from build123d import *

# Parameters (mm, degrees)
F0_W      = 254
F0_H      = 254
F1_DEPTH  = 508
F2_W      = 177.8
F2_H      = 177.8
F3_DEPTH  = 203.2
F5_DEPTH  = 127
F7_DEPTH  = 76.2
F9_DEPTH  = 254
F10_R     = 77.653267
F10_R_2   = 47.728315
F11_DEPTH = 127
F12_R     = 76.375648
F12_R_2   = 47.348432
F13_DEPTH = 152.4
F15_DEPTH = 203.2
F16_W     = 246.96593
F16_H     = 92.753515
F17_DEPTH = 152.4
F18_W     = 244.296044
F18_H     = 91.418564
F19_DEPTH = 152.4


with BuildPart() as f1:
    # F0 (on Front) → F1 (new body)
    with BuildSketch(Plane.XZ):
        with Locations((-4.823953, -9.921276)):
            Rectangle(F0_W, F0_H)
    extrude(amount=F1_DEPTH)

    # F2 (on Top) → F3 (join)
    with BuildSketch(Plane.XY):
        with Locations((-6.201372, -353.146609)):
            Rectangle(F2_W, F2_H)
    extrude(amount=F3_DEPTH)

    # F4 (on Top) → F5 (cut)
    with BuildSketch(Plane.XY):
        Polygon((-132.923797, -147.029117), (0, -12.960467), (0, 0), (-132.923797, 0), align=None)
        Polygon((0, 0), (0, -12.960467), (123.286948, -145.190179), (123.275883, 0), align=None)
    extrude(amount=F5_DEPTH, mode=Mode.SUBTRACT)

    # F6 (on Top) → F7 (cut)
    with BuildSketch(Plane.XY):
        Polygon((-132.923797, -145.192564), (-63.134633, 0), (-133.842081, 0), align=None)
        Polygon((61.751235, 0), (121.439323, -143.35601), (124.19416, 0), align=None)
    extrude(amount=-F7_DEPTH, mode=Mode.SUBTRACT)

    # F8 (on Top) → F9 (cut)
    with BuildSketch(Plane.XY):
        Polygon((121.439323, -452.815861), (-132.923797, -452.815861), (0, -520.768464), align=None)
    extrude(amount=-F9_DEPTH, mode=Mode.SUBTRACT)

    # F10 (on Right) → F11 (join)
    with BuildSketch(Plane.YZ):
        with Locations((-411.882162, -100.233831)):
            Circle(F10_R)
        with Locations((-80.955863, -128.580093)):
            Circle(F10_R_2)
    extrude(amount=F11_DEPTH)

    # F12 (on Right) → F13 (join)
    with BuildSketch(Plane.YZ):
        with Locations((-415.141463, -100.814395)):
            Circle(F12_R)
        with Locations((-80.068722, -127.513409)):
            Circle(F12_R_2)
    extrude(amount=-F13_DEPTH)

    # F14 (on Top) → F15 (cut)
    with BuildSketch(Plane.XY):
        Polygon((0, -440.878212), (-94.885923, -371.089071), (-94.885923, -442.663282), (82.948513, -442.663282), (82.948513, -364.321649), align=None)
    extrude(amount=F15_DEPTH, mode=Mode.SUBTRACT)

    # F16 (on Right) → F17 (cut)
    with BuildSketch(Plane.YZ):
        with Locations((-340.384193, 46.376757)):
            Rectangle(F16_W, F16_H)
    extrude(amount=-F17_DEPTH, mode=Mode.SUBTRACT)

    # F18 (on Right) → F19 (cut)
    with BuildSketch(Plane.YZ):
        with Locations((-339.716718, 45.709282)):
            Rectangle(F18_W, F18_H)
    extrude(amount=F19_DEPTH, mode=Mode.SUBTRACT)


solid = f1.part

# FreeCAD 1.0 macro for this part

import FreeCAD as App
import Part
import Sketcher

V = App.Vector
Q = App.Units.Quantity


def add_polygon(sketch, points):
    """Adds a closed chain of lines whose ends are joined by coincident constraints."""
    first, n = sketch.GeometryCount, len(points)
    for a, b in zip(points, points[1:] + points[:1]):
        sketch.addGeometry(Part.LineSegment(App.Vector(*a, 0), App.Vector(*b, 0)), False)
    for i in range(n):
        sketch.addConstraint(Sketcher.Constraint("Coincident", first + i, 2, first + (i + 1) % n, 1))

doc = App.newDocument("Part")
body = doc.addObject("PartDesign::Body", "Body")

sketch1 = doc.addObject("Sketcher::SketchObject", "Sketch")
body.addObject(sketch1)
sketch1.AttachmentSupport = (doc.XZ_Plane, [""])
sketch1.MapMode = "FlatFace"
add_polygon(sketch1, [(-132, 117), (-132, -137), (122, -137), (122, 117)])
sketch1.addConstraint(Sketcher.Constraint("Vertical", 0))
sketch1.addConstraint(Sketcher.Constraint("Horizontal", 1))
sketch1.addConstraint(Sketcher.Constraint("Vertical", 2))
sketch1.addConstraint(Sketcher.Constraint("Horizontal", 3))
sketch1.addConstraint(Sketcher.Constraint("Equal", 3, 0))
sketch1.addConstraint(Sketcher.Constraint("DistanceX", 1, 1, 1, 2, Q("10 in")))
sketch1.addConstraint(Sketcher.Constraint("DistanceX", 0, 2, -1, 1, Q("131.823953 mm")))
sketch1.addConstraint(Sketcher.Constraint("DistanceY", 0, 2, -1, 1, Q("136.921276 mm")))
pad1 = doc.addObject("PartDesign::Pad", "Pad")
body.addObject(pad1)
pad1.Profile = sketch1
pad1.Length = Q("20 in")

sketch2 = doc.addObject("Sketcher::SketchObject", "Sketch001")
body.addObject(sketch2)
sketch2.AttachmentSupport = (doc.XY_Plane, [""])
sketch2.MapMode = "FlatFace"
add_polygon(sketch2, [(-95, -264), (-95, -442), (83, -442), (83, -264)])
sketch2.addConstraint(Sketcher.Constraint("Vertical", 0))
sketch2.addConstraint(Sketcher.Constraint("Horizontal", 1))
sketch2.addConstraint(Sketcher.Constraint("Vertical", 2))
sketch2.addConstraint(Sketcher.Constraint("Horizontal", 3))
sketch2.addConstraint(Sketcher.Constraint("Equal", 3, 0))
sketch2.addConstraint(Sketcher.Constraint("DistanceX", 1, 1, 1, 2, Q("7 in")))
sketch2.addConstraint(Sketcher.Constraint("DistanceX", 0, 2, -1, 1, Q("95.101372 mm")))
sketch2.addConstraint(Sketcher.Constraint("DistanceY", 0, 2, -1, 1, Q("442.046609 mm")))
pad2 = doc.addObject("PartDesign::Pad", "Pad001")
body.addObject(pad2)
pad2.Profile = sketch2
pad2.Length = Q("8 in")

sketch3 = doc.addObject("Sketcher::SketchObject", "Sketch002")
body.addObject(sketch3)
sketch3.AttachmentSupport = (doc.XY_Plane, [""])
sketch3.MapMode = "FlatFace"
add_polygon(sketch3, [(-133, -147), (0, -13), (123, -145), (123, 0), (-133, 0)])
sketch3.addConstraint(Sketcher.Constraint("Horizontal", 3))
sketch3.addConstraint(Sketcher.Constraint("Vertical", 4))
sketch3.addConstraint(Sketcher.Constraint("PointOnObject", 0, 2, -2))
sketch3.addConstraint(Sketcher.Constraint("PointOnObject", 2, 2, -1))
sketch3.addConstraint(Sketcher.Constraint("DistanceX", 3, 2, 3, 1, Q("256.19968 mm")))
sketch3.addConstraint(Sketcher.Constraint("Distance", 2, Q("145.190179 mm")))
sketch3.addConstraint(Sketcher.Constraint("DistanceY", 4, 2, 4, 1, Q("147.029117 mm")))
sketch3.addConstraint(Sketcher.Constraint("DistanceY", 1, 2, 0, 2, Q("132.229712 mm")))
sketch3.addConstraint(Sketcher.Constraint("Distance", 0, Q("188.793905 mm")))
sketch3.addConstraint(Sketcher.Constraint("Distance", 1, Q("180.788186 mm")))
pocket1 = doc.addObject("PartDesign::Pocket", "Pocket")
body.addObject(pocket1)
pocket1.Profile = sketch3
pocket1.Length = Q("5 in")
pocket1.Reversed = True

sketch4 = doc.addObject("Sketcher::SketchObject", "Sketch003")
body.addObject(sketch4)
sketch4.AttachmentSupport = (doc.XY_Plane, [""])
sketch4.MapMode = "FlatFace"
add_polygon(sketch4, [(-133, -145), (-63, 0), (-134, 0)])
add_polygon(sketch4, [(62, 0), (121, -143), (124, 0)])
sketch4.addConstraint(Sketcher.Constraint("Horizontal", 1))
sketch4.addConstraint(Sketcher.Constraint("Horizontal", 5))
sketch4.addConstraint(Sketcher.Constraint("PointOnObject", 0, 2, -1))
sketch4.addConstraint(Sketcher.Constraint("PointOnObject", 4, 2, -1))
sketch4.addConstraint(Sketcher.Constraint("DistanceX", 1, 2, 1, 1, Q("70.707448 mm")))
sketch4.addConstraint(Sketcher.Constraint("DistanceX", 5, 2, 5, 1, Q("62.442925 mm")))
sketch4.addConstraint(Sketcher.Constraint("DistanceX", 1, 2, -1, 1, Q("133.842081 mm")))
sketch4.addConstraint(Sketcher.Constraint("DistanceY", 3, 2, -1, 1, Q("143.35601 mm")))
sketch4.addConstraint(Sketcher.Constraint("DistanceX", -1, 1, 4, 2, Q("124.19416 mm")))
sketch4.addConstraint(Sketcher.Constraint("DistanceX", 2, 2, 3, 2, Q("254.36312 mm")))
sketch4.addConstraint(Sketcher.Constraint("Distance", 0, Q("161.094407 mm")))
sketch4.addConstraint(Sketcher.Constraint("Distance", 2, Q("145.195468 mm")))
pocket2 = doc.addObject("PartDesign::Pocket", "Pocket001")
body.addObject(pocket2)
pocket2.Profile = sketch4
pocket2.Length = Q("3 in")

sketch5 = doc.addObject("Sketcher::SketchObject", "Sketch004")
body.addObject(sketch5)
sketch5.AttachmentSupport = (doc.XY_Plane, [""])
sketch5.MapMode = "FlatFace"
add_polygon(sketch5, [(121, -453), (-133, -453), (0, -521)])
sketch5.addConstraint(Sketcher.Constraint("Horizontal", 0))
sketch5.addConstraint(Sketcher.Constraint("PointOnObject", 1, 2, -2))
sketch5.addConstraint(Sketcher.Constraint("DistanceX", 0, 2, 0, 1, Q("254.36312 mm")))
sketch5.addConstraint(Sketcher.Constraint("Distance", 1, Q("149.285941 mm")))
sketch5.addConstraint(Sketcher.Constraint("Distance", 2, Q("139.158418 mm")))
sketch5.addConstraint(Sketcher.Constraint("DistanceY", 0, 2, -1, 1, Q("452.815861 mm")))
pocket3 = doc.addObject("PartDesign::Pocket", "Pocket002")
body.addObject(pocket3)
pocket3.Profile = sketch5
pocket3.Length = Q("10 in")

sketch6 = doc.addObject("Sketcher::SketchObject", "Sketch005")
body.addObject(sketch6)
sketch6.AttachmentSupport = (doc.YZ_Plane, [""])
sketch6.MapMode = "FlatFace"
sketch6.addGeometry(Part.Circle(V(-412, -100, 0), V(0, 0, 1), 78), False)
sketch6.addGeometry(Part.Circle(V(-81, -129, 0), V(0, 0, 1), 48), False)
sketch6.addConstraint(Sketcher.Constraint("Diameter", 1, Q("95.45663 mm")))
sketch6.addConstraint(Sketcher.Constraint("Diameter", 0, Q("155.306534 mm")))
sketch6.addConstraint(Sketcher.Constraint("DistanceX", 0, 3, 1, 3, Q("330.926299 mm")))
sketch6.addConstraint(Sketcher.Constraint("DistanceX", 0, 3, -1, 1, Q("411.882162 mm")))
sketch6.addConstraint(Sketcher.Constraint("DistanceY", 0, 3, -1, 1, Q("100.233831 mm")))
sketch6.addConstraint(Sketcher.Constraint("DistanceY", 1, 3, -1, 1, Q("128.580093 mm")))
pad3 = doc.addObject("PartDesign::Pad", "Pad002")
body.addObject(pad3)
pad3.Profile = sketch6
pad3.Length = Q("5 in")

sketch7 = doc.addObject("Sketcher::SketchObject", "Sketch006")
body.addObject(sketch7)
sketch7.AttachmentSupport = (doc.YZ_Plane, [""])
sketch7.MapMode = "FlatFace"
sketch7.addGeometry(Part.Circle(V(-415, -101, 0), V(0, 0, 1), 76), False)
sketch7.addGeometry(Part.Circle(V(-80, -128, 0), V(0, 0, 1), 47), False)
sketch7.addConstraint(Sketcher.Constraint("Diameter", 0, Q("152.751296 mm")))
sketch7.addConstraint(Sketcher.Constraint("Diameter", 1, Q("94.696864 mm")))
sketch7.addConstraint(Sketcher.Constraint("DistanceX", 1, 3, -1, 1, Q("80.068722 mm")))
sketch7.addConstraint(Sketcher.Constraint("DistanceY", 1, 3, -1, 1, Q("127.513409 mm")))
sketch7.addConstraint(Sketcher.Constraint("DistanceX", 0, 3, 1, 3, Q("335.072741 mm")))
sketch7.addConstraint(Sketcher.Constraint("DistanceY", 0, 3, -1, 1, Q("100.814395 mm")))
pad4 = doc.addObject("PartDesign::Pad", "Pad003")
body.addObject(pad4)
pad4.Profile = sketch7
pad4.Length = Q("6 in")
pad4.Reversed = True

sketch8 = doc.addObject("Sketcher::SketchObject", "Sketch007")
body.addObject(sketch8)
sketch8.AttachmentSupport = (doc.XY_Plane, [""])
sketch8.MapMode = "FlatFace"
add_polygon(sketch8, [(0, -441), (-95, -371), (-95, -443), (83, -443), (83, -364)])
sketch8.addConstraint(Sketcher.Constraint("Vertical", 1))
sketch8.addConstraint(Sketcher.Constraint("Horizontal", 2))
sketch8.addConstraint(Sketcher.Constraint("Vertical", 3))
sketch8.addConstraint(Sketcher.Constraint("PointOnObject", 4, 2, -2))
sketch8.addConstraint(Sketcher.Constraint("DistanceY", 1, 2, 1, 1, Q("71.574211 mm")))
sketch8.addConstraint(Sketcher.Constraint("Distance", 0, Q("117.787362 mm")))
sketch8.addConstraint(Sketcher.Constraint("DistanceX", 2, 1, 2, 2, Q("177.834436 mm")))
sketch8.addConstraint(Sketcher.Constraint("DistanceY", 3, 1, 3, 2, Q("78.341633 mm")))
sketch8.addConstraint(Sketcher.Constraint("DistanceY", 0, 2, -1, 1, Q("371.089071 mm")))
sketch8.addConstraint(Sketcher.Constraint("DistanceY", 4, 2, -1, 1, Q("440.878212 mm")))
pocket4 = doc.addObject("PartDesign::Pocket", "Pocket003")
body.addObject(pocket4)
pocket4.Profile = sketch8
pocket4.Length = Q("8 in")
pocket4.Reversed = True

sketch9 = doc.addObject("Sketcher::SketchObject", "Sketch008")
body.addObject(sketch9)
sketch9.AttachmentSupport = (doc.YZ_Plane, [""])
sketch9.MapMode = "FlatFace"
add_polygon(sketch9, [(-464, 93), (-464, 0), (-217, 0), (-217, 93)])
sketch9.addConstraint(Sketcher.Constraint("Vertical", 0))
sketch9.addConstraint(Sketcher.Constraint("Horizontal", 1))
sketch9.addConstraint(Sketcher.Constraint("Vertical", 2))
sketch9.addConstraint(Sketcher.Constraint("Horizontal", 3))
sketch9.addConstraint(Sketcher.Constraint("PointOnObject", 0, 2, -1))
sketch9.addConstraint(Sketcher.Constraint("DistanceX", 1, 1, 1, 2, Q("246.96593 mm")))
sketch9.addConstraint(Sketcher.Constraint("DistanceY", 0, 2, 0, 1, Q("92.753515 mm")))
sketch9.addConstraint(Sketcher.Constraint("DistanceX", 0, 2, -1, 1, Q("463.867158 mm")))
pocket5 = doc.addObject("PartDesign::Pocket", "Pocket004")
body.addObject(pocket5)
pocket5.Profile = sketch9
pocket5.Length = Q("6 in")

sketch10 = doc.addObject("Sketcher::SketchObject", "Sketch009")
body.addObject(sketch10)
sketch10.AttachmentSupport = (doc.YZ_Plane, [""])
sketch10.MapMode = "FlatFace"
add_polygon(sketch10, [(-462, 91), (-462, 0), (-218, 0), (-218, 91)])
sketch10.addConstraint(Sketcher.Constraint("Vertical", 0))
sketch10.addConstraint(Sketcher.Constraint("Horizontal", 1))
sketch10.addConstraint(Sketcher.Constraint("Vertical", 2))
sketch10.addConstraint(Sketcher.Constraint("Horizontal", 3))
sketch10.addConstraint(Sketcher.Constraint("PointOnObject", 0, 2, -1))
sketch10.addConstraint(Sketcher.Constraint("DistanceX", 1, 1, 1, 2, Q("244.296044 mm")))
sketch10.addConstraint(Sketcher.Constraint("DistanceY", 0, 2, 0, 1, Q("91.418564 mm")))
sketch10.addConstraint(Sketcher.Constraint("DistanceX", 0, 2, -1, 1, Q("461.86474 mm")))
pocket6 = doc.addObject("PartDesign::Pocket", "Pocket005")
body.addObject(pocket6)
pocket6.Profile = sketch10
pocket6.Length = Q("6 in")
pocket6.Reversed = True

doc.recompute()
